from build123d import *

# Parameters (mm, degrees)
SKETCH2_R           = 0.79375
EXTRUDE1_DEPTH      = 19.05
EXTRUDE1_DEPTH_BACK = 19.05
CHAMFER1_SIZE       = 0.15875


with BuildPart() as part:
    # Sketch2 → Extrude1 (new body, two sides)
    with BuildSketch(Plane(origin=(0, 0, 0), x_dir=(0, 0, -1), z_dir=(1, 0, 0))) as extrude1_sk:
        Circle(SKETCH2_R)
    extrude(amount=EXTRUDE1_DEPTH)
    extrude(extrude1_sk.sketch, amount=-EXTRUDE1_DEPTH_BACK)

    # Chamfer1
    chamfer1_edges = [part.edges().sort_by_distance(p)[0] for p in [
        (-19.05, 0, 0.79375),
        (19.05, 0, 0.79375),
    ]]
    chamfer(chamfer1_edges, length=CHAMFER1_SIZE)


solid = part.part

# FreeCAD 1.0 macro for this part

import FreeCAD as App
import Part
import Sketcher

V = App.Vector
Q = App.Units.Quantity


def edges_at(feature, points):
    """Names of the edges that pass closest to the given points."""
    edges = feature.Shape.Edges
    near = lambda p: min(range(len(edges)), key=lambda i: edges[i].distToShape(Part.Vertex(*p))[0])
    return sorted({f"Edge{near(p) + 1}" for p in points})

doc = App.newDocument("Part")
body = doc.addObject("PartDesign::Body", "Body")

# Sketch on YZ plane
sketch1 = body.newObject("Sketcher::SketchObject", "Sketch")
sketch1.AttachmentSupport = (doc.getObject("YZ_Plane"), [""])
sketch1.MapMode = "FlatFace"
sketch1.addGeometry(Part.Circle(V(0, 0, 0), V(0, 0, 1), 0.8), False)
sketch1.addConstraint(Sketcher.Constraint("Coincident", 0, 3, -1, 1))
sketch1.addConstraint(Sketcher.Constraint("Diameter", 0, Q("0.0625 in")))
pad1 = body.newObject("PartDesign::Pad", "Pad")
pad1.Profile = sketch1
pad1.Type = "TwoLengths"
pad1.Length = Q("0.75 in")
pad1.Length2 = Q("0.75 in")
doc.recompute()

chamfer = body.newObject("PartDesign::Chamfer", "Chamfer")
chamfer.Base = (pad1, edges_at(pad1, [(-19.05, 0, 0.794), (19.05, 0, 0.794)]))
chamfer.Size = 0.15875

doc.recompute()
